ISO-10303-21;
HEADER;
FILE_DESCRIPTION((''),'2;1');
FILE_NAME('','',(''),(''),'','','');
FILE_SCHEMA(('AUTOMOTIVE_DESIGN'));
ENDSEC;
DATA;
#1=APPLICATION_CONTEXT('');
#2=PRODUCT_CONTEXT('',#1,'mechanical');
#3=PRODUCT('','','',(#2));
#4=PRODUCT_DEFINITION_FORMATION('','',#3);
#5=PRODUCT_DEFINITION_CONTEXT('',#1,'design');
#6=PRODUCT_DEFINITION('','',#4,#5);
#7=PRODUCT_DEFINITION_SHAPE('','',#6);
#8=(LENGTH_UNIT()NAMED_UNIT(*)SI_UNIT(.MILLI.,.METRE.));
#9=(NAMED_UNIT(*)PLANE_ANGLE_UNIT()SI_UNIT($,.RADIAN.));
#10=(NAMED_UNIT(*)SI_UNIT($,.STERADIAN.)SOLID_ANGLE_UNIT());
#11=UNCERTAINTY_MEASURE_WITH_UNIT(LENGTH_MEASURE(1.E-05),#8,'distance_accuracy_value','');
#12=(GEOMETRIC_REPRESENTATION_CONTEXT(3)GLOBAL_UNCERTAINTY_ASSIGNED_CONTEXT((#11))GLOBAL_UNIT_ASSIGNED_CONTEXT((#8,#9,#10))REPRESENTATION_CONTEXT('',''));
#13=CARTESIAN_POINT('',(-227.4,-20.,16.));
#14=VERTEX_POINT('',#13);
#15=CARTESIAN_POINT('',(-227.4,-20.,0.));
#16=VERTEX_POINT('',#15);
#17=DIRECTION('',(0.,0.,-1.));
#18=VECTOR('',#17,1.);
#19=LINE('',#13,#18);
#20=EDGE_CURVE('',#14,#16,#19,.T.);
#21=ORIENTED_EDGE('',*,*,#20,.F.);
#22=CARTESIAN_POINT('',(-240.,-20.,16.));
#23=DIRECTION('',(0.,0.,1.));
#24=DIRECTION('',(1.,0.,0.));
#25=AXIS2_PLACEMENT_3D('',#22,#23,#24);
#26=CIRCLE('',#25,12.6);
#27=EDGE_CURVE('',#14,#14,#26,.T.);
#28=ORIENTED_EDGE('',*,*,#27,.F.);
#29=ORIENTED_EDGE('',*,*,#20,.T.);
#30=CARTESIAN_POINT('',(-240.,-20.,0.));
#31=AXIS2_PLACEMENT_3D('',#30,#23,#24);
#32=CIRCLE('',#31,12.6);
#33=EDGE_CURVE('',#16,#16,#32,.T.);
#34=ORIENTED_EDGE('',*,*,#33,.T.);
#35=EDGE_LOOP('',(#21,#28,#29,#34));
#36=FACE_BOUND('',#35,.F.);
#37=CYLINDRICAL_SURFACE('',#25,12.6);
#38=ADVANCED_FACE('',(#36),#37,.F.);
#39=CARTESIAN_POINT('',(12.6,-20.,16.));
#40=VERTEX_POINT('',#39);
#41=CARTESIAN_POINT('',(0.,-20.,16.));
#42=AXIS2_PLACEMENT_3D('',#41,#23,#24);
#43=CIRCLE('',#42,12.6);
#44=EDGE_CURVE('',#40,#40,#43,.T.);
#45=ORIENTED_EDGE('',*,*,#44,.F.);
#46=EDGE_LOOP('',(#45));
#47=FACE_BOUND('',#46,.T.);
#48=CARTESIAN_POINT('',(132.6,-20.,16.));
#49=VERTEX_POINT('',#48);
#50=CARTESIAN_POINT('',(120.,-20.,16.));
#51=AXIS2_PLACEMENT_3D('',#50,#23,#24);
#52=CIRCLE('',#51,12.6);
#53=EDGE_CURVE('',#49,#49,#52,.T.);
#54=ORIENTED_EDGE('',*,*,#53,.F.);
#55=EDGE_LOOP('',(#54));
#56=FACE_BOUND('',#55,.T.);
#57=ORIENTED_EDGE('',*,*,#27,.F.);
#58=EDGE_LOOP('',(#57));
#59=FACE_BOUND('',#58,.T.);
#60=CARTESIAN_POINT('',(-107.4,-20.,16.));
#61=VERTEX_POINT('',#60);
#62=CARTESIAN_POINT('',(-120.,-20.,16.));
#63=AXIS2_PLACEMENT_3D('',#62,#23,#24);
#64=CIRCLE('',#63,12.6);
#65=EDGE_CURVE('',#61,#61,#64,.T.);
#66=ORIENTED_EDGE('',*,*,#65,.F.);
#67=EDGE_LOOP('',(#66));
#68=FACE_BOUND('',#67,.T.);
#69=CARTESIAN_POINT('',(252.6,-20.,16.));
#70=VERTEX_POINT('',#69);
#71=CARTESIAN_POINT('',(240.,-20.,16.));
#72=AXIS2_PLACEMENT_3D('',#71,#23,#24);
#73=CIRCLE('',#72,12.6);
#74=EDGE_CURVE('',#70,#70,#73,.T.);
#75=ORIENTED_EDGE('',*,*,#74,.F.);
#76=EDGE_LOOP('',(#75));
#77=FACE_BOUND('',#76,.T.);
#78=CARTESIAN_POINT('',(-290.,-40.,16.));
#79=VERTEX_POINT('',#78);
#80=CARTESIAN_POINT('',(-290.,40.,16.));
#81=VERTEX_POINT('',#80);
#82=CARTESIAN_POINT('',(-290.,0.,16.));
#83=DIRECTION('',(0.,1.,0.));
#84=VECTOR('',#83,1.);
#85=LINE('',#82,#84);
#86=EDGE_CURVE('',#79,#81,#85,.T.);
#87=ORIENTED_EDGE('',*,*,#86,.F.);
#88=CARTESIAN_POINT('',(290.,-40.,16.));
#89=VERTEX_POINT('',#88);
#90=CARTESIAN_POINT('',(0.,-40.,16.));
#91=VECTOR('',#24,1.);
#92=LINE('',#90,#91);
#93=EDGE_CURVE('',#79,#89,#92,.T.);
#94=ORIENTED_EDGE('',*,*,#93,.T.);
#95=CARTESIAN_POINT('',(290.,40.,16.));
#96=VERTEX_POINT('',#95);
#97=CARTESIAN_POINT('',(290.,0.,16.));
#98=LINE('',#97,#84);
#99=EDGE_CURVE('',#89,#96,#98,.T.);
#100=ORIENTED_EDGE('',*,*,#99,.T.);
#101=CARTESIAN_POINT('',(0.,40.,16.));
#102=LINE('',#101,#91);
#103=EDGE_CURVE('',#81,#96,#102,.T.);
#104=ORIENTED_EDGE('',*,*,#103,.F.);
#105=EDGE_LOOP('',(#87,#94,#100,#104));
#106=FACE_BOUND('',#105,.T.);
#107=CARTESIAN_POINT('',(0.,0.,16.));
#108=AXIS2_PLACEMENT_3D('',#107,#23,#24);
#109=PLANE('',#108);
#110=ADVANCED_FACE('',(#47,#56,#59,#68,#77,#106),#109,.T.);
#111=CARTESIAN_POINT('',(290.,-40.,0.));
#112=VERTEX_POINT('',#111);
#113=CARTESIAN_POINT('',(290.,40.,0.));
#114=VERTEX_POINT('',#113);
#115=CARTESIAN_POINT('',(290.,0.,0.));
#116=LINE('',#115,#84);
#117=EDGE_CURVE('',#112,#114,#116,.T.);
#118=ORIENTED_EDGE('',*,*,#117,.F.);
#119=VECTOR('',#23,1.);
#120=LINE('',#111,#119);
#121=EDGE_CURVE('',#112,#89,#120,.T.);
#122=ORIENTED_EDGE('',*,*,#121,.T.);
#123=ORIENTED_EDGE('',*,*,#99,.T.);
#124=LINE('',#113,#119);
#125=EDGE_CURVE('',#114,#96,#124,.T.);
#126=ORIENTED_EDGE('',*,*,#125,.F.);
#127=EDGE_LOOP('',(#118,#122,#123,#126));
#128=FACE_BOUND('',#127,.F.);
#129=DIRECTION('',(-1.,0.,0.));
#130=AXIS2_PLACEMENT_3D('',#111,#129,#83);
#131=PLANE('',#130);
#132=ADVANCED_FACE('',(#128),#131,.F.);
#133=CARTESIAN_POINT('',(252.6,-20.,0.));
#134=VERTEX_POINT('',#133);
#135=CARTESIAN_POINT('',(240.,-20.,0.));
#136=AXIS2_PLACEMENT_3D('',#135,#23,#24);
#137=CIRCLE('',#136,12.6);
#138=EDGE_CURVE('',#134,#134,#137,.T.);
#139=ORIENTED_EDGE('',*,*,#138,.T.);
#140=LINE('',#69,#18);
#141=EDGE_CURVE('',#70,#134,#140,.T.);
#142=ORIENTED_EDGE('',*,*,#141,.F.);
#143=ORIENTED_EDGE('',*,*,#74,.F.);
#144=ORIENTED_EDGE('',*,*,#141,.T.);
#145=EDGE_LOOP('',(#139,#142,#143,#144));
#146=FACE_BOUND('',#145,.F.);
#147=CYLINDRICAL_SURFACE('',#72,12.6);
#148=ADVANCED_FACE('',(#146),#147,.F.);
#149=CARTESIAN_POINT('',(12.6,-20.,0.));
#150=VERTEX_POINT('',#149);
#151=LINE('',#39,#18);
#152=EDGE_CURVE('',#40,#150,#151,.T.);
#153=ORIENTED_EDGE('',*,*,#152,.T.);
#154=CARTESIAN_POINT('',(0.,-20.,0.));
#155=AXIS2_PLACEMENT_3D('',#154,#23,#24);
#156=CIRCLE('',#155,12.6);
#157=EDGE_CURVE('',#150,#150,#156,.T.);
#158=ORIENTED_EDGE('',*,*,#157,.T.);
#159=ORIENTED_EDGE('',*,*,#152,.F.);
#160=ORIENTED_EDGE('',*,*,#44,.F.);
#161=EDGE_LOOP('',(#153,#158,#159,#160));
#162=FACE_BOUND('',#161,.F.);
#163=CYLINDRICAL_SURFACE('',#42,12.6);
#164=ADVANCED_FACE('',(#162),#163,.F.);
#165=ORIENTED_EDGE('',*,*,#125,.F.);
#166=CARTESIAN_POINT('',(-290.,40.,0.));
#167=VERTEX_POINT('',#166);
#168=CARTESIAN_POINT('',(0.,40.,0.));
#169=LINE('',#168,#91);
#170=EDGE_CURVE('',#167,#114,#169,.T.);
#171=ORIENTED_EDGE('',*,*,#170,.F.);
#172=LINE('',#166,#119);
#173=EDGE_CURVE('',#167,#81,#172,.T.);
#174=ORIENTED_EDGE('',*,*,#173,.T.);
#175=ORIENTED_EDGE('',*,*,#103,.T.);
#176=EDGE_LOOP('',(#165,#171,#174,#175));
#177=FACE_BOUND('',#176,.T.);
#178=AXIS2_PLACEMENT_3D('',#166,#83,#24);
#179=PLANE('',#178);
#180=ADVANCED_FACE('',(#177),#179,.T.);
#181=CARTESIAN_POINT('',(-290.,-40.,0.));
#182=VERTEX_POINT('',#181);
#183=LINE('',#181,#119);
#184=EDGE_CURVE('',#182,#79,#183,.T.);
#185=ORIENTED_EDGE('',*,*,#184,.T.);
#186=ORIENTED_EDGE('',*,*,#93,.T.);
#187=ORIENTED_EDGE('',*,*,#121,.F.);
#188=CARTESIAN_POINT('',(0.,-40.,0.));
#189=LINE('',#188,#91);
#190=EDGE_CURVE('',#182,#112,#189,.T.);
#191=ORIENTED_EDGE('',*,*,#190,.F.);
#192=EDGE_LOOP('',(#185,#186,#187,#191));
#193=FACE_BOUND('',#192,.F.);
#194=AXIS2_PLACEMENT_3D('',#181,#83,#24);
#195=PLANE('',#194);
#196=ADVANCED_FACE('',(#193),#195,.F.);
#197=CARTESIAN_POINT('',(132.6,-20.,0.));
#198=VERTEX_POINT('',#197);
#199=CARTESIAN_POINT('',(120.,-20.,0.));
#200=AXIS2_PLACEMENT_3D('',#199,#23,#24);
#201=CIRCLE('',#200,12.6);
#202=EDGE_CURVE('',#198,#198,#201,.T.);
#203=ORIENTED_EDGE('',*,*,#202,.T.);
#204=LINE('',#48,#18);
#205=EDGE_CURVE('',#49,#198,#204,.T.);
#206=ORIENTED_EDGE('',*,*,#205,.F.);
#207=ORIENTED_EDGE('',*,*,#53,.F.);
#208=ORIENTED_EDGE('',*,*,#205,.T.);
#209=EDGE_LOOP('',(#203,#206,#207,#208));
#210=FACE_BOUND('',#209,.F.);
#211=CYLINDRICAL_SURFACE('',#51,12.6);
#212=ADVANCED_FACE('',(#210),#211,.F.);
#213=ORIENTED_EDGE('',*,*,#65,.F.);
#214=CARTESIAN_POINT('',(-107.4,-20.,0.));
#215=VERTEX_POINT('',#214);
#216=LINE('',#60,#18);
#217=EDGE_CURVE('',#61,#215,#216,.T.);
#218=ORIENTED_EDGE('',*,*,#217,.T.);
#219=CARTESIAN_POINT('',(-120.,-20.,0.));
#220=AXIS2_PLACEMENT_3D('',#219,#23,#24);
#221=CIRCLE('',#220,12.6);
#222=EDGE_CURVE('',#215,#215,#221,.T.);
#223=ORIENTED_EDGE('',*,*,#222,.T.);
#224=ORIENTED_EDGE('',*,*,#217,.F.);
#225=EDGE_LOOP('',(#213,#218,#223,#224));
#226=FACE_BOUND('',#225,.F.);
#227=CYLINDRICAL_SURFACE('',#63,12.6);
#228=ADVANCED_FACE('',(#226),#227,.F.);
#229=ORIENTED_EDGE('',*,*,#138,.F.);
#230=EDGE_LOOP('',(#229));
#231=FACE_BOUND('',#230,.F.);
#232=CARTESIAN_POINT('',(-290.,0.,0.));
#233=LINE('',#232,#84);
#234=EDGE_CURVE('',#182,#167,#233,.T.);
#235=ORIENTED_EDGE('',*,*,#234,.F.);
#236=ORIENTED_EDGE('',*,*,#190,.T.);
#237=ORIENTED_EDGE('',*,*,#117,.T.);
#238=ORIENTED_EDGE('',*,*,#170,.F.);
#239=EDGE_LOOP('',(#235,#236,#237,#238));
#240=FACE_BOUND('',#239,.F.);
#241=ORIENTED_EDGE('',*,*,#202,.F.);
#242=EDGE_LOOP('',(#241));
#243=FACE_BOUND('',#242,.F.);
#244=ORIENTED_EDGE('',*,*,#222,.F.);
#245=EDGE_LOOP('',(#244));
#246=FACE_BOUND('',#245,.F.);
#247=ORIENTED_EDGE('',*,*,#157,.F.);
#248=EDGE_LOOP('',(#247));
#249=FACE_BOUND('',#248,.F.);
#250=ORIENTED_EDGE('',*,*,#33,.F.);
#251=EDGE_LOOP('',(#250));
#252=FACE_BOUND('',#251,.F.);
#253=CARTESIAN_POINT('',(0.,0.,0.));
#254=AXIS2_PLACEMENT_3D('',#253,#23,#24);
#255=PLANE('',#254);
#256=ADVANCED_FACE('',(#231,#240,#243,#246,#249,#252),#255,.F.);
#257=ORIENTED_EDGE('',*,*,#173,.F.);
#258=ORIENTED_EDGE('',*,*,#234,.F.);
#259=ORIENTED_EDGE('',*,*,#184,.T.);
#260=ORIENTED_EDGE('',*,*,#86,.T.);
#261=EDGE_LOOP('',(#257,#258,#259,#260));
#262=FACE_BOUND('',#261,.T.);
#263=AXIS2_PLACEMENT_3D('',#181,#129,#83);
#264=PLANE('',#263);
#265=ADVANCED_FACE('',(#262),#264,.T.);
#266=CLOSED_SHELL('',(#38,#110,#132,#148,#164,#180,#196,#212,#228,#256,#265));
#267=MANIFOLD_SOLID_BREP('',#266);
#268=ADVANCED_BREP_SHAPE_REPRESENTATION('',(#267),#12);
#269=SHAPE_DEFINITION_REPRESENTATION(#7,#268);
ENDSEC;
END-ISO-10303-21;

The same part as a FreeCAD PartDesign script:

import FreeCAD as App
import Part
import Sketcher

V = App.Vector
Q = App.Units.Quantity


def add_polygon(sketch, points):
    """Adds a closed chain of lines whose ends are joined by coincident constraints."""
    first, n = sketch.GeometryCount, len(points)
    for a, b in zip(points, points[1:] + points[:1]):
        sketch.addGeometry(Part.LineSegment(App.Vector(*a, 0), App.Vector(*b, 0)), False)
    for i in range(n):
        sketch.addConstraint(Sketcher.Constraint("Coincident", first + i, 2, first + (i + 1) % n, 1))

doc = App.newDocument("Part")
body = doc.addObject("PartDesign::Body", "Body")

# Sketch on XY plane
sketch1 = body.newObject("Sketcher::SketchObject", "Sketch")
sketch1.AttachmentSupport = (doc.getObject("XY_Plane"), [""])
sketch1.MapMode = "FlatFace"
add_polygon(sketch1, [(-290, 40), (-290, -40), (290, -40), (290, 40)])  # lines 0-3
sketch1.addConstraint(Sketcher.Constraint("Vertical", 0))
sketch1.addConstraint(Sketcher.Constraint("Horizontal", 1))
sketch1.addConstraint(Sketcher.Constraint("Vertical", 2))
sketch1.addConstraint(Sketcher.Constraint("Horizontal", 3))
sketch1.addConstraint(Sketcher.Constraint("Symmetric", 0, 2, 2, 2, -1, 1))
sketch1.addConstraint(Sketcher.Constraint("DistanceX", 1, 1, 1, 2, Q("580 mm")))
sketch1.addConstraint(Sketcher.Constraint("DistanceY", 0, 2, 0, 1, Q("80 mm")))
pad1 = body.newObject("PartDesign::Pad", "Pad")
pad1.Profile = sketch1
pad1.Length = 16

# Sketch on XY plane
sketch2 = body.newObject("Sketcher::SketchObject", "Sketch001")
sketch2.AttachmentSupport = (doc.getObject("XY_Plane"), [""])
sketch2.MapMode = "FlatFace"
sketch2.AttachmentOffset = App.Placement(V(0, 0, 16), App.Rotation())
sketch2.addGeometry(Part.Circle(V(-240, -20, 0), V(0, 0, 1), 13), False)
sketch2.addGeometry(Part.Circle(V(-120, -20, 0), V(0, 0, 1), 13), False)
sketch2.addGeometry(Part.Circle(V(0, -20, 0), V(0, 0, 1), 13), False)
sketch2.addGeometry(Part.Circle(V(120, -20, 0), V(0, 0, 1), 13), False)
sketch2.addGeometry(Part.Circle(V(240, -20, 0), V(0, 0, 1), 13), False)
sketch2.addConstraint(Sketcher.Constraint("Equal", 0, 1))
sketch2.addConstraint(Sketcher.Constraint("Equal", 1, 2))
sketch2.addConstraint(Sketcher.Constraint("Equal", 2, 3))
sketch2.addConstraint(Sketcher.Constraint("Equal", 3, 4))
sketch2.addConstraint(Sketcher.Constraint("Symmetric", 1, 3, 3, 3, -2))
sketch2.addConstraint(Sketcher.Constraint("Symmetric", 0, 3, 4, 3, -2))
sketch2.addConstraint(Sketcher.Constraint("PointOnObject", 2, 3, -2))
sketch2.addConstraint(Sketcher.Constraint("Horizontal", 0, 3, 1, 3))
sketch2.addConstraint(Sketcher.Constraint("Horizontal", 1, 3, 2, 3))
sketch2.addConstraint(Sketcher.Constraint("Diameter", 0, Q("25.2 mm")))
sketch2.addConstraint(Sketcher.Constraint("DistanceX", 0, 3, -1, 1, Q("240 mm")))
sketch2.addConstraint(Sketcher.Constraint("DistanceY", 0, 3, -1, 1, Q("20 mm")))
sketch2.addConstraint(Sketcher.Constraint("DistanceX", 1, 3, -1, 1, Q("120 mm")))
pocket1 = body.newObject("PartDesign::Pocket", "Pocket")
pocket1.Profile = sketch2
pocket1.Length = 16

doc.recompute()
